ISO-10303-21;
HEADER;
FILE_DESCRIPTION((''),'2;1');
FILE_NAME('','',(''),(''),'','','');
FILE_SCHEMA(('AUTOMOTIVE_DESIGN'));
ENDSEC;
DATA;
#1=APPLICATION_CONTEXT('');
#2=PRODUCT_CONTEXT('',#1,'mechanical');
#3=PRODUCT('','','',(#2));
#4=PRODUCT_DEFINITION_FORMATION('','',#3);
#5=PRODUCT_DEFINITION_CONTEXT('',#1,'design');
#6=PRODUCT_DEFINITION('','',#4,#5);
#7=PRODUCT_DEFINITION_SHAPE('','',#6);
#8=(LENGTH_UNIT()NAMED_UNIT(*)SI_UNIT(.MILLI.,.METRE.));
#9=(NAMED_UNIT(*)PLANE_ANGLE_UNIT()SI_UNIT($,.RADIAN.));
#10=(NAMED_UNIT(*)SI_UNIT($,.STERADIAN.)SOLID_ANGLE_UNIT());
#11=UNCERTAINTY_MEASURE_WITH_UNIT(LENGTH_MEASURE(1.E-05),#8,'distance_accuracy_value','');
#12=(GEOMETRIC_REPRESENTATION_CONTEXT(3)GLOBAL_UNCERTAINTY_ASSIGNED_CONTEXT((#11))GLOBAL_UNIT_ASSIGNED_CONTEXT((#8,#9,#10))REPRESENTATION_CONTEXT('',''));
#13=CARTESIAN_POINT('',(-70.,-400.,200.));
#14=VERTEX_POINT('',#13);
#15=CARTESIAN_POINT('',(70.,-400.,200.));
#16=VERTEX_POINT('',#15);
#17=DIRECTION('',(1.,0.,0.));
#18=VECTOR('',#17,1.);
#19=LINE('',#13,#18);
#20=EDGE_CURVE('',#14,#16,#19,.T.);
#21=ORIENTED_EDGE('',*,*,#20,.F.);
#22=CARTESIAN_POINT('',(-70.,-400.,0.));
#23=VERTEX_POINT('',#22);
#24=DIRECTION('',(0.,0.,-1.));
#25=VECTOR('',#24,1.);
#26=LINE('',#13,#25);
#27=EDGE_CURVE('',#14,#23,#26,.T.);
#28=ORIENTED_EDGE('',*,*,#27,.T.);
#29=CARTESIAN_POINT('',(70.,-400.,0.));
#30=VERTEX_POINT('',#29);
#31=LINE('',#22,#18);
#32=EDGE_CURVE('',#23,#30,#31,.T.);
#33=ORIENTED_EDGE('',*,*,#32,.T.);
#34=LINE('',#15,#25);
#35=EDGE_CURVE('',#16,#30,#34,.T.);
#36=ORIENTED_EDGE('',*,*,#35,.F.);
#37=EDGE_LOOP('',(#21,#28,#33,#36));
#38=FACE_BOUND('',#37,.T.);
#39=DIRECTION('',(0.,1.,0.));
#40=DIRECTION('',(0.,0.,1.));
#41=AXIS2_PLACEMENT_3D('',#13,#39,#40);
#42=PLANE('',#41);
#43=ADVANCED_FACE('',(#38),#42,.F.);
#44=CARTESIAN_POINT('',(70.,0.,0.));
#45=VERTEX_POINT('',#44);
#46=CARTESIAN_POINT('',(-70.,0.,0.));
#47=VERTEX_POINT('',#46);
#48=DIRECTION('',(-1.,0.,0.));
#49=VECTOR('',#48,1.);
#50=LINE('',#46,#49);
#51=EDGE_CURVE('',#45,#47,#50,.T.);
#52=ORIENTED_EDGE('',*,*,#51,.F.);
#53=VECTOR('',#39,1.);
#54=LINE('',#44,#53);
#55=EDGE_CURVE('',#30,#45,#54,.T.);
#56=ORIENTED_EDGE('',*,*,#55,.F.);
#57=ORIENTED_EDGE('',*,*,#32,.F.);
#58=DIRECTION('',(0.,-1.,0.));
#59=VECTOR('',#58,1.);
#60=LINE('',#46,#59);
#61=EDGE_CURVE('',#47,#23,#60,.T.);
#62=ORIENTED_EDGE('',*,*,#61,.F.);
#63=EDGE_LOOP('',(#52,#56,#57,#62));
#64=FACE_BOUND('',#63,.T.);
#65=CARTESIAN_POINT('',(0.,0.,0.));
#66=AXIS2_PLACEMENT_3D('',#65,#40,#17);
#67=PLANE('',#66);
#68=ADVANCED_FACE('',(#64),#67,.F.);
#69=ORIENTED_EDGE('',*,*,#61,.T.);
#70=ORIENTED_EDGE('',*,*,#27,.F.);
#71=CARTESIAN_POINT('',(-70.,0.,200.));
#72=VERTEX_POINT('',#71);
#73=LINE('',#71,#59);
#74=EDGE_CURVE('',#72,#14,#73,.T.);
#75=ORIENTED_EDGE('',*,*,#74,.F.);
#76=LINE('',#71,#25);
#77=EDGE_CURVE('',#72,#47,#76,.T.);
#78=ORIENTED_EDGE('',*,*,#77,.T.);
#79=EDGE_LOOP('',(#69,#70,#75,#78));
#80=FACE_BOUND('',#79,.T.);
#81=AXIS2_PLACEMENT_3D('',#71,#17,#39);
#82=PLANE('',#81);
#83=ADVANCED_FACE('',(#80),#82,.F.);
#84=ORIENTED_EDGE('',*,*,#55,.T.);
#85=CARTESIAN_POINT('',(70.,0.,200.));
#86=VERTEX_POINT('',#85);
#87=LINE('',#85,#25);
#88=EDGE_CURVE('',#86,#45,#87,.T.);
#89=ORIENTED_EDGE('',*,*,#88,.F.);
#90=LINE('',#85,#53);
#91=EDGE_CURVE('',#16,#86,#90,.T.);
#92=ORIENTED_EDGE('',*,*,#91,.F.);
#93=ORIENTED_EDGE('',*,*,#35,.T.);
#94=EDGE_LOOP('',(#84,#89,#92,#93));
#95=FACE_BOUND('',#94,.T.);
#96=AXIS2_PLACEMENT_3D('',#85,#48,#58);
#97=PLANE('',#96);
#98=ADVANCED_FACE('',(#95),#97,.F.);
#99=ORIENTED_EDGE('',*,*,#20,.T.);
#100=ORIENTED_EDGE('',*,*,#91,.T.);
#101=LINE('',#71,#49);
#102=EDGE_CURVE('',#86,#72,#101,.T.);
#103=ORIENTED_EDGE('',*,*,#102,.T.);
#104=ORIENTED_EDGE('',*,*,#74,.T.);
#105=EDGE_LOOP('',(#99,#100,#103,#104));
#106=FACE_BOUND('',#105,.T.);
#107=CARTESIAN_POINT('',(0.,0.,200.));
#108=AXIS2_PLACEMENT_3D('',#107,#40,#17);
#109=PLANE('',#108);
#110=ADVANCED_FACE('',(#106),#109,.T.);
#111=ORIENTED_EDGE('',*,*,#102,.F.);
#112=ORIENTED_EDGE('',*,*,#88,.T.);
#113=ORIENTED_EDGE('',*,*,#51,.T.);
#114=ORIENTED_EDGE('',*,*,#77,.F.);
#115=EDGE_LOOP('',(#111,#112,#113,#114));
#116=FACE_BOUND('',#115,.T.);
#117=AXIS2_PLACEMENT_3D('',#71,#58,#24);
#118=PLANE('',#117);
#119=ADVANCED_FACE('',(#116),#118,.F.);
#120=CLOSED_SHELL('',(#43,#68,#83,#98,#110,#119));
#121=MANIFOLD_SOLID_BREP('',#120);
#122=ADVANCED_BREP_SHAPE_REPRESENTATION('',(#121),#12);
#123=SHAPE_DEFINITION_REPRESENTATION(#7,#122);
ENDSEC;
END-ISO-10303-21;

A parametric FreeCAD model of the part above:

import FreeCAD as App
import Part
import Sketcher

V = App.Vector


def add_polygon(sketch, points):
    """Adds a closed chain of lines whose ends are joined by coincident constraints."""
    first, n = sketch.GeometryCount, len(points)
    for a, b in zip(points, points[1:] + points[:1]):
        sketch.addGeometry(Part.LineSegment(App.Vector(*a, 0), App.Vector(*b, 0)), False)
    for i in range(n):
        sketch.addConstraint(Sketcher.Constraint("Coincident", first + i, 2, first + (i + 1) % n, 1))

doc = App.newDocument("Part")
body = doc.addObject("PartDesign::Body", "Body")

sketch1 = doc.addObject("Sketcher::SketchObject", "Sketch")
body.addObject(sketch1)
sketch1.AttachmentSupport = (doc.XY_Plane, [""])
sketch1.MapMode = "FlatFace"
add_polygon(sketch1, [(-70, 0), (-70, -400), (70, -400), (70, 0)])
sketch1.addConstraint([
    Sketcher.Constraint("Vertical", 0),
    Sketcher.Constraint("Horizontal", 1),
    Sketcher.Constraint("Vertical", 2),
    Sketcher.Constraint("Horizontal", 3),
    Sketcher.Constraint("Symmetric", 2, 2, 3, 2, -1, 1),
    Sketcher.Constraint("DistanceX", 1, 1, 1, 2, 140.0),
    Sketcher.Constraint("DistanceY", 0, 2, 0, 1, 400.0),
])
pad1 = doc.addObject("PartDesign::Pad", "Pad")
body.addObject(pad1)
pad1.Profile = sketch1
pad1.Length = 200

doc.recompute()
